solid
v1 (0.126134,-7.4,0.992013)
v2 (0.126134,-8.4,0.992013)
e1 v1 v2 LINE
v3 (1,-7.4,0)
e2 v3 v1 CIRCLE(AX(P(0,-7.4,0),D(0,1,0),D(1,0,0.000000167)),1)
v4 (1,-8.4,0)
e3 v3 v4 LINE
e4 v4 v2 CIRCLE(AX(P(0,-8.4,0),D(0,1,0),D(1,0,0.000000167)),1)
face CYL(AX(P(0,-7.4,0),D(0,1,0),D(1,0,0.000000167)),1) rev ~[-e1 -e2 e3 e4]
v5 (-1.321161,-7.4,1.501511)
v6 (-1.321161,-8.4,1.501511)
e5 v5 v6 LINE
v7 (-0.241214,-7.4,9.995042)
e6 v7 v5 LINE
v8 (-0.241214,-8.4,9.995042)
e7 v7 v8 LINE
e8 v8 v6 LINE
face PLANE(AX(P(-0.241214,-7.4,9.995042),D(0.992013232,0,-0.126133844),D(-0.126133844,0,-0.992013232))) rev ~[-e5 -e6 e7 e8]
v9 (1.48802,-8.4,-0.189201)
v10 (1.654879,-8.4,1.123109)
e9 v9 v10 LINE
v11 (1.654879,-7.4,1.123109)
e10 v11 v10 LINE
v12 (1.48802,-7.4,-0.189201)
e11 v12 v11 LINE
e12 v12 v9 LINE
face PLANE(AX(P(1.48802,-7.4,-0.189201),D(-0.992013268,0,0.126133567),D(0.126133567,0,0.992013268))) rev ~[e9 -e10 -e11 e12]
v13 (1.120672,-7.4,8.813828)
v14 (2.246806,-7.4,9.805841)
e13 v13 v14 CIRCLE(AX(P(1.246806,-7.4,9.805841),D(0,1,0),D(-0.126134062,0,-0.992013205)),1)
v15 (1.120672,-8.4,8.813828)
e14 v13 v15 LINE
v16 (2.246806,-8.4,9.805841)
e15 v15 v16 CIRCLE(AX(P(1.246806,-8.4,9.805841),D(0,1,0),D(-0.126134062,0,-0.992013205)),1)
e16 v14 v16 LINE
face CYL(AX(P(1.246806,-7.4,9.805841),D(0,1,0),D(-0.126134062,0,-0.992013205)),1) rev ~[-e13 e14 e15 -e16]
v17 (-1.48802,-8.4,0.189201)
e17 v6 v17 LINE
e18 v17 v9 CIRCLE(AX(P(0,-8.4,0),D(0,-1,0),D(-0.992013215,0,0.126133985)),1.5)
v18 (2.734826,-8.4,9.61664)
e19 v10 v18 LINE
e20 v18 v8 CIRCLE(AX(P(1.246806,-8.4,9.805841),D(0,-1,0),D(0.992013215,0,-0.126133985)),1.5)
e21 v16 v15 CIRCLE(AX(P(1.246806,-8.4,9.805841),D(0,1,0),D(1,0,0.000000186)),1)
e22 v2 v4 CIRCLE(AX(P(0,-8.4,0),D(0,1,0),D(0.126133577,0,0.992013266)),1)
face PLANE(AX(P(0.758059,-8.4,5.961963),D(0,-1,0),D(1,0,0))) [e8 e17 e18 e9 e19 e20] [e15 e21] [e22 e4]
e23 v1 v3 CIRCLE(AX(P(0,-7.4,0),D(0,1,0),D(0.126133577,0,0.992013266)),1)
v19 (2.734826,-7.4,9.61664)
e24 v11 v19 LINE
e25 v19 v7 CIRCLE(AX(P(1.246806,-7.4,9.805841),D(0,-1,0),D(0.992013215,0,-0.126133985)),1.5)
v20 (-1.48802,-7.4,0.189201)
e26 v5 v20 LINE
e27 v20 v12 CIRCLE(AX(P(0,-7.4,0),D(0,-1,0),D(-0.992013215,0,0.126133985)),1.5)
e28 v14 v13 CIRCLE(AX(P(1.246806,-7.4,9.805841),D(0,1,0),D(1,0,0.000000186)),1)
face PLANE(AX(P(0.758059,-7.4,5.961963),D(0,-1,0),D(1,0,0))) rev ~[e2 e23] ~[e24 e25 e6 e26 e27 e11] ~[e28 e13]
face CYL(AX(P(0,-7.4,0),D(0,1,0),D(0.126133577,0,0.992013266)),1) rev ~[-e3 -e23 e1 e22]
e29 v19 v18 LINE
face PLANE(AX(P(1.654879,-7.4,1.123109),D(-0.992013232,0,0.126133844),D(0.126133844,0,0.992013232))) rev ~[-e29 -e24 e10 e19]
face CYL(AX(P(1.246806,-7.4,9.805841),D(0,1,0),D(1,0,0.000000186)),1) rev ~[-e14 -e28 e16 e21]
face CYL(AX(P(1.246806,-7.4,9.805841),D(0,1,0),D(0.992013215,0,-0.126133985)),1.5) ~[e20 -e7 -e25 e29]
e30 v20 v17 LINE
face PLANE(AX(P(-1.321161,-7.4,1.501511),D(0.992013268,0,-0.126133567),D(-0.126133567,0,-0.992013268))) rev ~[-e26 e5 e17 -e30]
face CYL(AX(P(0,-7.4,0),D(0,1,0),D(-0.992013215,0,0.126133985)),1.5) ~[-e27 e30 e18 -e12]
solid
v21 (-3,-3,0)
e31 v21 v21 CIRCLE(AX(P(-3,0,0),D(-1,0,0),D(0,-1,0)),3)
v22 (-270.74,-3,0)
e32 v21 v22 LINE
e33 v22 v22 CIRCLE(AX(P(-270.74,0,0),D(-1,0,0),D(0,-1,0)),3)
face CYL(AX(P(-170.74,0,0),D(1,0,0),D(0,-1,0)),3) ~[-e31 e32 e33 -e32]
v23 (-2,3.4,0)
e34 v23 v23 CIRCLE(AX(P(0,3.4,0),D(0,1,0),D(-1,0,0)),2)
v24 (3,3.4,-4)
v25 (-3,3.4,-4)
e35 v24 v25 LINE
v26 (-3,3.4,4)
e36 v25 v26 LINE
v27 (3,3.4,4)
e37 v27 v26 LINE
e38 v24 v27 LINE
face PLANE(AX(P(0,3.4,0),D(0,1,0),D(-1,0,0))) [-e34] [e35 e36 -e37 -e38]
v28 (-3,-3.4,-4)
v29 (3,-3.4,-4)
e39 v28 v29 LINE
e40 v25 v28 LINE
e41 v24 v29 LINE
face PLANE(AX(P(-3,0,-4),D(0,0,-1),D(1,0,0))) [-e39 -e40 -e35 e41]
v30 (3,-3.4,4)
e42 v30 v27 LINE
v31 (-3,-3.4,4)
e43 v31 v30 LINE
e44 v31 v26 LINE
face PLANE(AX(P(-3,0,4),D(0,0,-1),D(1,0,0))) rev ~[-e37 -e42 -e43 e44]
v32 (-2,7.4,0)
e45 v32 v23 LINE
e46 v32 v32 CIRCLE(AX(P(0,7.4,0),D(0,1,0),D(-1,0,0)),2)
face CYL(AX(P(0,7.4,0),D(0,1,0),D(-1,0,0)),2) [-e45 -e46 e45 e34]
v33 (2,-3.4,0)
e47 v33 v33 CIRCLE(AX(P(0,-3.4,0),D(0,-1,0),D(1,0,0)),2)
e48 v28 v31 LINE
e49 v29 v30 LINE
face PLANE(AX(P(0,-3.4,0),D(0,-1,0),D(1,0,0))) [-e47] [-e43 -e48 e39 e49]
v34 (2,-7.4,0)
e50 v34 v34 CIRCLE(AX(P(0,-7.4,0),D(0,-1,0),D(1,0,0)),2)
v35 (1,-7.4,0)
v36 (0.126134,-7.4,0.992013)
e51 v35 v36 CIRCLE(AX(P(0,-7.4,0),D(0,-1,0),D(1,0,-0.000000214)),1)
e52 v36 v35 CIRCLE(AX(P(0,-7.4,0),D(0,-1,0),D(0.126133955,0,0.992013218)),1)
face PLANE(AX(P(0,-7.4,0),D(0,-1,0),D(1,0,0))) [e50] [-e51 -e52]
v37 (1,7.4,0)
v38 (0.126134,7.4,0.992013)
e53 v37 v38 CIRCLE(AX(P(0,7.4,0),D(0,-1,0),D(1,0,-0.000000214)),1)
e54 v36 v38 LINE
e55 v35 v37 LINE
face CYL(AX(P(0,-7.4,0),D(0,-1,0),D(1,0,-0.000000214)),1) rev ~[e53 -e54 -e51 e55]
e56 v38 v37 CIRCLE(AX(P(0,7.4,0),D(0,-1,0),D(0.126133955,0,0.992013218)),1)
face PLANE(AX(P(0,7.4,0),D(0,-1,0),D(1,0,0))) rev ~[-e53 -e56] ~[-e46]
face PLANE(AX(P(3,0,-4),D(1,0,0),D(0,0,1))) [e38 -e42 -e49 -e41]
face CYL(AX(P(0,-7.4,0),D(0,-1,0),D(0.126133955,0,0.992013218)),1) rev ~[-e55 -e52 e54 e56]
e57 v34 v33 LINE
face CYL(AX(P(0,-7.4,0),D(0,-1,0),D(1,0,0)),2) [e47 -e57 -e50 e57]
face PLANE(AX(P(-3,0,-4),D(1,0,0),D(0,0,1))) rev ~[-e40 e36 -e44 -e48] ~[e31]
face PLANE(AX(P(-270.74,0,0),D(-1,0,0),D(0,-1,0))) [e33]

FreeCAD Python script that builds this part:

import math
import FreeCAD as App
import Part
import Sketcher
from FreeCAD import Vector
Q = App.Units.Quantity


def add_polygon(sketch, points):
    """Adds a closed chain of lines whose ends are joined by coincident constraints."""
    first, n = sketch.GeometryCount, len(points)
    for a, b in zip(points, points[1:] + points[:1]):
        sketch.addGeometry(Part.LineSegment(App.Vector(*a, 0), App.Vector(*b, 0)), False)
    for i in range(n):
        sketch.addConstraint(Sketcher.Constraint("Coincident", first + i, 2, first + (i + 1) % n, 1))

doc = App.newDocument("Part")
body = doc.addObject("PartDesign::Body", "Body")

# Sketch on XZ plane
sketch1 = doc.addObject("Sketcher::SketchObject", "Sketch")
body.addObject(sketch1)
sketch1.AttachmentSupport = (doc.XZ_Plane, [""])
sketch1.MapMode = "FlatFace"
add_polygon(sketch1, [(-3, 4), (-3, -4), (3, -4), (3, 4)])  # lines 0-3
sketch1.addConstraint([
    Sketcher.Constraint("Vertical", 0),
    Sketcher.Constraint("Horizontal", 1),
    Sketcher.Constraint("Vertical", 2),
    Sketcher.Constraint("Horizontal", 3),
    Sketcher.Constraint("Symmetric", 0, 2, 2, 2, -1, 1),
    Sketcher.Constraint("DistanceX", 1, 1, 1, 2, Q("6 mm")),
    Sketcher.Constraint("DistanceY", 0, 2, 0, 1, Q("8 mm")),
])
pad1 = doc.addObject("PartDesign::Pad", "Pad")
body.addObject(pad1)
pad1.Profile = sketch1
pad1.Length = 14.8
pad1.Midplane = True

# Sketch on XZ plane
sketch2 = doc.addObject("Sketcher::SketchObject", "Sketch001")
body.addObject(sketch2)
sketch2.AttachmentSupport = (doc.XZ_Plane, [""])
sketch2.MapMode = "FlatFace"
sketch2.AttachmentOffset = App.Placement(Vector(0, 0, 7.4), App.Rotation())
add_polygon(sketch2, [(-3, 4), (-3, -4), (3, -4), (3, 4)])  # lines 0-3
sketch2.addGeometry(Part.Circle(Vector(0, 0, 0), Vector(0, 0, 1), 2), False)  # 4
sketch2.addConstraint([
    Sketcher.Constraint("Vertical", 0),
    Sketcher.Constraint("Horizontal", 1),
    Sketcher.Constraint("Vertical", 2),
    Sketcher.Constraint("Horizontal", 3),
    Sketcher.Constraint("Coincident", 4, 3, -1, 1),
    Sketcher.Constraint("Symmetric", 0, 2, 2, 2, -1, 1),
    Sketcher.Constraint("Diameter", 4, Q("4 mm")),
    Sketcher.Constraint("DistanceX", 1, 1, 1, 2, Q("6 mm")),
    Sketcher.Constraint("DistanceY", 0, 2, 0, 1, Q("8 mm")),
])
pocket1 = doc.addObject("PartDesign::Pocket", "Pocket")
body.addObject(pocket1)
pocket1.Profile = sketch2
pocket1.Length = 4

# Sketch on XZ plane
sketch3 = doc.addObject("Sketcher::SketchObject", "Sketch002")
body.addObject(sketch3)
sketch3.AttachmentSupport = (doc.XZ_Plane, [""])
sketch3.MapMode = "FlatFace"
sketch3.AttachmentOffset = App.Placement(Vector(0, 0, -7.4), App.Rotation())
add_polygon(sketch3, [(3, 4), (3, -4), (-3, -4), (-3, 4)])  # lines 0-3
sketch3.addGeometry(Part.Circle(Vector(0, 0, 0), Vector(0, 0, 1), 2), False)  # 4
sketch3.addConstraint([
    Sketcher.Constraint("Vertical", 0),
    Sketcher.Constraint("Horizontal", 1),
    Sketcher.Constraint("Vertical", 2),
    Sketcher.Constraint("Horizontal", 3),
    Sketcher.Constraint("Coincident", 4, 3, -1, 1),
    Sketcher.Constraint("Symmetric", 0, 2, 2, 2, -1, 1),
    Sketcher.Constraint("Diameter", 4, Q("4 mm")),
    Sketcher.Constraint("DistanceX", 1, 2, 1, 1, Q("6 mm")),
    Sketcher.Constraint("DistanceY", 0, 2, 0, 1, Q("8 mm")),
])
pocket2 = doc.addObject("PartDesign::Pocket", "Pocket001")
body.addObject(pocket2)
pocket2.Profile = sketch3
pocket2.Length = 4
pocket2.Reversed = True

# Sketch on YZ plane
sketch4 = doc.addObject("Sketcher::SketchObject", "Sketch003")
body.addObject(sketch4)
sketch4.AttachmentSupport = (doc.YZ_Plane, [""])
sketch4.MapMode = "FlatFace"
sketch4.AttachmentOffset = App.Placement(Vector(0, 0, -3), App.Rotation())
sketch4.addGeometry(Part.Circle(Vector(0, 0, 0), Vector(0, 0, 1), 3), False)
sketch4.addConstraint([
    Sketcher.Constraint("Coincident", 0, 3, -1, 1),
    Sketcher.Constraint("Diameter", 0, Q("6 mm")),
])
pad2 = doc.addObject("PartDesign::Pad", "Pad001")
body.addObject(pad2)
pad2.Profile = sketch4
pad2.Length = 167.74
pad2.Reversed = True

# Sketch on YZ plane
sketch5 = doc.addObject("Sketcher::SketchObject", "Sketch004")
body.addObject(sketch5)
sketch5.AttachmentSupport = (doc.YZ_Plane, [""])
sketch5.MapMode = "FlatFace"
sketch5.AttachmentOffset = App.Placement(Vector(0, 0, -170.74), App.Rotation())
sketch5.addGeometry(Part.Circle(Vector(0, 0, 0), Vector(0, 0, 1), 3), False)
sketch5.addConstraint([
    Sketcher.Constraint("Coincident", 0, 3, -1, 1),
    Sketcher.Constraint("Diameter", 0, Q("6 mm")),
])
pad3 = doc.addObject("PartDesign::Pad", "Pad002")
body.addObject(pad3)
pad3.Profile = sketch5
pad3.Length = 100
pad3.Reversed = True

# Sketch on XZ plane
sketch6 = doc.addObject("Sketcher::SketchObject", "Sketch005")
body.addObject(sketch6)
sketch6.AttachmentSupport = (doc.XZ_Plane, [""])
sketch6.MapMode = "FlatFace"
sketch6.AttachmentOffset = App.Placement(Vector(0, 0, 7.4), App.Rotation())
sketch6.addGeometry([
    Part.ArcOfCircle(Part.Circle(Vector(0, 0, 0), Vector(0, 0, 1), 1), math.radians(82.753755), math.radians(360.00001)),
    Part.ArcOfCircle(Part.Circle(Vector(0, 0, 0), Vector(0, 0, 1), 1), math.radians(-0.000012), math.radians(82.753777)),
], False)
sketch6.addConstraint([
    Sketcher.Constraint("Tangent", 0, 1, 1, 2),
    Sketcher.Constraint("Coincident", 1, 1, 0, 2),
    Sketcher.Constraint("Coincident", 0, 3, -1, 1),
    Sketcher.Constraint("PointOnObject", 1, 1, -1),
    Sketcher.Constraint("Radius", 0, Q("1 mm")),
    Sketcher.Constraint("DistanceX", -1, 1, 0, 1, Q("0.126134 mm")),
])
pocket3 = doc.addObject("PartDesign::Pocket", "Pocket002")
body.addObject(pocket3)
pocket3.Profile = sketch6
pocket3.Type = "ThroughAll"
body2 = doc.addObject("PartDesign::Body", "Body001")

# Sketch on XZ plane
sketch7 = doc.addObject("Sketcher::SketchObject", "Sketch006")
body2.addObject(sketch7)
sketch7.AttachmentSupport = (doc.getObject("XZ_Plane001"), [""])
sketch7.MapMode = "FlatFace"
sketch7.AttachmentOffset = App.Placement(Vector(0, 0, 7.4), App.Rotation())
sketch7.addGeometry([
    Part.LineSegment(Vector(-0.241214, 9.995042, 0), Vector(-1.321161, 1.501511, 0)),  # 0
    Part.LineSegment(Vector(-1.321161, 1.501511, 0), Vector(-1.48802, 0.189201, 0)),  # 1
    Part.ArcOfCircle(Part.Circle(Vector(0, 0, 0), Vector(0, 0, 1), 1.5), math.radians(172.753753), math.radians(352.753753)),  # 2
    Part.LineSegment(Vector(1.48802, -0.189201, 0), Vector(1.654879, 1.123109, 0)),  # 3
    Part.LineSegment(Vector(1.654879, 1.123109, 0), Vector(2.734826, 9.61664, 0)),  # 4
    Part.ArcOfCircle(Part.Circle(Vector(1.246806, 9.805841, 0), Vector(0, 0, 1), 1.5), math.radians(-7.246247), math.radians(172.753753)),  # 5
    Part.ArcOfCircle(Part.Circle(Vector(0, 0, 0), Vector(0, 0, 1), 1), math.radians(82.753755), math.radians(360.00001)),  # 6
    Part.ArcOfCircle(Part.Circle(Vector(0, 0, 0), Vector(0, 0, 1), 1), math.radians(-0.000012), math.radians(82.753777)),  # 7
    Part.ArcOfCircle(Part.Circle(Vector(1.246806, 9.805841, 0), Vector(0, 0, 1), 1), math.radians(-0.000009), math.radians(262.753749)),  # 8
    Part.ArcOfCircle(Part.Circle(Vector(1.246806, 9.805841, 0), Vector(0, 0, 1), 1), math.radians(-97.24627), math.radians(0.000011)),  # 9
], False)
sketch7.addConstraint([
    Sketcher.Constraint("Coincident", 0, 2, 1, 1),
    Sketcher.Constraint("Tangent", 1, 2, 2, 1),
    Sketcher.Constraint("Tangent", 2, 2, 3, 1),
    Sketcher.Constraint("Coincident", 3, 2, 4, 1),
    Sketcher.Constraint("Tangent", 4, 2, 5, 1),
    Sketcher.Constraint("Tangent", 5, 2, 0, 1),
    Sketcher.Constraint("Tangent", 6, 1, 7, 2),
    Sketcher.Constraint("Coincident", 7, 1, 6, 2),
    Sketcher.Constraint("Tangent", 8, 1, 9, 2),
    Sketcher.Constraint("Coincident", 9, 1, 8, 2),
    Sketcher.Constraint("Coincident", 2, 3, -1, 1),
    Sketcher.Constraint("Coincident", 6, 3, -1, 1),
    Sketcher.Constraint("Coincident", 8, 3, 5, 3),
    Sketcher.Constraint("Equal", 2, 5),
    Sketcher.Constraint("Equal", 7, 8),
    Sketcher.Constraint("PointOnObject", 7, 1, -1),
    Sketcher.Constraint("Parallel", 0, 1),
    Sketcher.Constraint("Parallel", 1, 3),
    Sketcher.Constraint("Horizontal", 9, 3, 8, 1),
    Sketcher.Constraint("Equal", 1, 3),
    Sketcher.Constraint("Radius", 6, Q("1 mm")),
    Sketcher.Constraint("Radius", 2, Q("1.5 mm")),
    Sketcher.Constraint("DistanceY", -1, 1, 1, 2, Q("0.189201 mm")),
    Sketcher.Constraint("DistanceY", -1, 1, 5, 3, Q("9.805841 mm")),
    Sketcher.Constraint("DistanceX", 0, 2, -1, 1, Q("1.321161 mm")),
    Sketcher.Constraint("DistanceX", -1, 1, 9, 1, Q("1.120672 mm")),
    Sketcher.Constraint("DistanceX", -1, 1, 6, 1, Q("0.126134 mm")),
])
pad4 = doc.addObject("PartDesign::Pad", "Pad003")
body2.addObject(pad4)
pad4.Profile = sketch7
pad4.Length = 1

doc.recompute()
